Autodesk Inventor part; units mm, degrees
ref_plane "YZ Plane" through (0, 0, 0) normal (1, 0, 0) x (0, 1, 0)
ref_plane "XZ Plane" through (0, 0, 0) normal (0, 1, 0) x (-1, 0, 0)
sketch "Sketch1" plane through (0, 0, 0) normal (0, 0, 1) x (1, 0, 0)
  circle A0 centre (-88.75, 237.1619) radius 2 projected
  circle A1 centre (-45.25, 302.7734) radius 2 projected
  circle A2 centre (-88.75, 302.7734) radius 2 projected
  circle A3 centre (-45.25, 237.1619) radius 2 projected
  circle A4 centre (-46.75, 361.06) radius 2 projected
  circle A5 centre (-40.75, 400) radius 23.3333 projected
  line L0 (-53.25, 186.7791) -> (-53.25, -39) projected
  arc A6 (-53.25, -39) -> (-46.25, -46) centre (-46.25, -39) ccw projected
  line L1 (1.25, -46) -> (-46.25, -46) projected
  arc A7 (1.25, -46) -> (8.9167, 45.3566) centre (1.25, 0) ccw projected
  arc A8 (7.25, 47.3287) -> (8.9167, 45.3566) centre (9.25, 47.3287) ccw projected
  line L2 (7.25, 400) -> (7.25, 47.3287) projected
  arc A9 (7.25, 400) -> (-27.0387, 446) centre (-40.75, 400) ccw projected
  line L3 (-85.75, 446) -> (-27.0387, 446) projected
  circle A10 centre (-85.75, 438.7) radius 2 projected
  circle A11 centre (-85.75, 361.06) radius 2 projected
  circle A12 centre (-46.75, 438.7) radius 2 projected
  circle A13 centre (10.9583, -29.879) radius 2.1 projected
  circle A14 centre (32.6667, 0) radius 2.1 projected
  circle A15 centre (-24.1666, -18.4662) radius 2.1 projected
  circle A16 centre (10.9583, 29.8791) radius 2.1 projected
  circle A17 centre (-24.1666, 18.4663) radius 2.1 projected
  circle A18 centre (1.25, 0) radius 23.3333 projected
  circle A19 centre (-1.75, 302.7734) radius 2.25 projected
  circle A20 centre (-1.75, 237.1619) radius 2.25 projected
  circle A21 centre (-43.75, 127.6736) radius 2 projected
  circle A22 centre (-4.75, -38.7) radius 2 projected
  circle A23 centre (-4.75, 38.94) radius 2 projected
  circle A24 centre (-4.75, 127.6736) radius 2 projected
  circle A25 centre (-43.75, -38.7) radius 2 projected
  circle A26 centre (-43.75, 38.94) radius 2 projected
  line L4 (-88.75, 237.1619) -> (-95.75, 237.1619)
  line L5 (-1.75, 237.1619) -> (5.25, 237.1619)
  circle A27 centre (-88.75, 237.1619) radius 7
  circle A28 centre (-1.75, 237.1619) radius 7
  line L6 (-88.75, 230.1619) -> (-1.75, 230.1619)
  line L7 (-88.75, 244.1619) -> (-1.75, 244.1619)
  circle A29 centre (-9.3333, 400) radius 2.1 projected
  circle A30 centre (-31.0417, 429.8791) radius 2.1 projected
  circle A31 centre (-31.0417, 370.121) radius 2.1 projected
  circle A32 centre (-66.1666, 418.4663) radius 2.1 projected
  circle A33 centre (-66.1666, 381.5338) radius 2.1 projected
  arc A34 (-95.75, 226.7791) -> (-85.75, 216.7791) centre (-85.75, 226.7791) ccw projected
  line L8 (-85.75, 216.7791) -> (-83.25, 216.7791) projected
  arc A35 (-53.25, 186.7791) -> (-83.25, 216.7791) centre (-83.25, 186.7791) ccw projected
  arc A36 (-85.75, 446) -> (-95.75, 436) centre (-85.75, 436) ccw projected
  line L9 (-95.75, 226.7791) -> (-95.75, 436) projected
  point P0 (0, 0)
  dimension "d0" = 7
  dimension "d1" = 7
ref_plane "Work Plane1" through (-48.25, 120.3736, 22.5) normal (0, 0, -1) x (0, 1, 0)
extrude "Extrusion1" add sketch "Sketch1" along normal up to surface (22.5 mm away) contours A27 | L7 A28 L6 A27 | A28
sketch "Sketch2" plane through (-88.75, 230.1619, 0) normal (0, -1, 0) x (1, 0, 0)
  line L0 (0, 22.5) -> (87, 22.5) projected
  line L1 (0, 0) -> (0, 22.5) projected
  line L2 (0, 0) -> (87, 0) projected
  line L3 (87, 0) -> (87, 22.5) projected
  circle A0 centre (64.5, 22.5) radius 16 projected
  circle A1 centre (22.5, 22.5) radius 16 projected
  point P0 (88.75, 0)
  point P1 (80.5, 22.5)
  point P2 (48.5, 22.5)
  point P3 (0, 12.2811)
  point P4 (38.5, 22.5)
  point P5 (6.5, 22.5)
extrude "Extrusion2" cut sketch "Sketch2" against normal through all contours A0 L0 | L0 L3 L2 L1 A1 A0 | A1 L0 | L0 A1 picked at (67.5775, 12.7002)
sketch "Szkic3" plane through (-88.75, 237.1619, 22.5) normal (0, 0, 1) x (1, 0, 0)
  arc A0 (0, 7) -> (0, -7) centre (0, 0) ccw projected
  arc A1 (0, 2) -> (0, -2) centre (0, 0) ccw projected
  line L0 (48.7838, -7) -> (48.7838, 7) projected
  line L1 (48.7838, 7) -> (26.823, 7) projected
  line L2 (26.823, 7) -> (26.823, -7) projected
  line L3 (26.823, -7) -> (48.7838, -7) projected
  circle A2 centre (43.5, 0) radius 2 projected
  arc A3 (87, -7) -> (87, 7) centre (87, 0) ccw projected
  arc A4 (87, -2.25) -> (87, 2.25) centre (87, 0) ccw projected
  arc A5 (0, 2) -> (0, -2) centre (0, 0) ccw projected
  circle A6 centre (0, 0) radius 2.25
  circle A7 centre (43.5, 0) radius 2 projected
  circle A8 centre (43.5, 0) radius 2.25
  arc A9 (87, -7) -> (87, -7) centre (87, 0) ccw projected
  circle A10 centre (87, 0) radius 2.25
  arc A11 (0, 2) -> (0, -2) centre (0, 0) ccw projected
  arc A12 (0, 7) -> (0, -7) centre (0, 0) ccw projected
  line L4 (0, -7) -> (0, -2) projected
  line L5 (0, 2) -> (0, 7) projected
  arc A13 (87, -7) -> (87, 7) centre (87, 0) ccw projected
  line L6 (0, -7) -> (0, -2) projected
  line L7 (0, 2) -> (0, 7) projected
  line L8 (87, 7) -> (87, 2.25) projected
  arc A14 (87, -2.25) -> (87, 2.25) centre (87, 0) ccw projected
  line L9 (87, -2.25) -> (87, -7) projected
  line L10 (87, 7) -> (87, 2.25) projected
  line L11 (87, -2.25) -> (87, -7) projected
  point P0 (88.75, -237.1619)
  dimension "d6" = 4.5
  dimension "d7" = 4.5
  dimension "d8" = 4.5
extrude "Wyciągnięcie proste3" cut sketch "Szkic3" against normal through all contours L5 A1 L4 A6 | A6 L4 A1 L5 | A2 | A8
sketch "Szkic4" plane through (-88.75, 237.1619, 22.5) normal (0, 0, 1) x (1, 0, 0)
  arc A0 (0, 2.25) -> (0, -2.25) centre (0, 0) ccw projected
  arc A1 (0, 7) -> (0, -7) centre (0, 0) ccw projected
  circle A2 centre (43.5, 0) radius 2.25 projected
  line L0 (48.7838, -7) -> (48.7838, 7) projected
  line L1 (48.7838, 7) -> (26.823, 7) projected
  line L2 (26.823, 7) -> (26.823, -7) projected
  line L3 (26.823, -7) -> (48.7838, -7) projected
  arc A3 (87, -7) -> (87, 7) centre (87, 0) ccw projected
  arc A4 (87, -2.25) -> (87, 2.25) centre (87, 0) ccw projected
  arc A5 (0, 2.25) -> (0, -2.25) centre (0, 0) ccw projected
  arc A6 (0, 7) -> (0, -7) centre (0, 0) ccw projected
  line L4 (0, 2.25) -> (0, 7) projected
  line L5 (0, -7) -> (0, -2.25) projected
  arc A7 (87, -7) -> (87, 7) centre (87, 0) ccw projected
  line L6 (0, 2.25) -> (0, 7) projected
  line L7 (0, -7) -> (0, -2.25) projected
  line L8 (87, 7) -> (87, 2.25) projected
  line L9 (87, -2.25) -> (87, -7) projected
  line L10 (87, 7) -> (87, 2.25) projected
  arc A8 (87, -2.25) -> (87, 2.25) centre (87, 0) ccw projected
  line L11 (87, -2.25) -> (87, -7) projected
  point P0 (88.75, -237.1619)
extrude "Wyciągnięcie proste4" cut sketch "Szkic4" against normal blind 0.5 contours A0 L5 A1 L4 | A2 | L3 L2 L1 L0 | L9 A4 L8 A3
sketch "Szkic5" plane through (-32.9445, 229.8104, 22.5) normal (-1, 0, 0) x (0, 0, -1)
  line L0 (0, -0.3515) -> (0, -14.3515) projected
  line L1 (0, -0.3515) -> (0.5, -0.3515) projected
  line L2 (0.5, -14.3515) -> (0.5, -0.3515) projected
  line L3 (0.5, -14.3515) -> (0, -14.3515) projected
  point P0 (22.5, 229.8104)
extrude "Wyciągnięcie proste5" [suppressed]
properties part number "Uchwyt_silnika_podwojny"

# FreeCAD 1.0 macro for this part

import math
import FreeCAD as App
import Part
import Sketcher

V = App.Vector


def add_polygon(sketch, points):
    """Adds a closed chain of lines whose ends are joined by coincident constraints."""
    first, n = sketch.GeometryCount, len(points)
    for a, b in zip(points, points[1:] + points[:1]):
        sketch.addGeometry(Part.LineSegment(App.Vector(*a, 0), App.Vector(*b, 0)), False)
    for i in range(n):
        sketch.addConstraint(Sketcher.Constraint("Coincident", first + i, 2, first + (i + 1) % n, 1))

doc = App.newDocument("Part")
body = doc.addObject("PartDesign::Body", "Body")
body.AllowCompound = True

sketch1 = body.newObject("Sketcher::SketchObject", "Sketch")
sketch1.AttachmentSupport = (doc.getObject("XY_Plane"), [""])
sketch1.MapMode = "FlatFace"
sketch1.addGeometry(Part.ArcOfCircle(Part.Circle(V(-88.8, 237.2, 0), V(0, 0, 1), 7), math.radians(90), math.radians(180)), False)
sketch1.addGeometry(Part.ArcOfCircle(Part.Circle(V(-88.8, 237.2, 0), V(0, 0, 1), 7), math.radians(180), math.radians(270)), False)
sketch1.addGeometry(Part.LineSegment(V(-88.8, 230.2, 0), V(-1.8, 230.2, 0)), False)
sketch1.addGeometry(Part.ArcOfCircle(Part.Circle(V(-1.8, 237.2, 0), V(0, 0, 1), 7), math.radians(-90), math.radians(0)), False)
sketch1.addGeometry(Part.ArcOfCircle(Part.Circle(V(-1.8, 237.2, 0), V(0, 0, 1), 7), math.radians(0), math.radians(90)), False)
sketch1.addGeometry(Part.LineSegment(V(-1.8, 244.2, 0), V(-88.8, 244.2, 0)), False)
sketch1.addGeometry(Part.Circle(V(-88.8, 237.2, 0), V(0, 0, 1), 2), False)
sketch1.addGeometry(Part.Circle(V(-45.2, 237.2, 0), V(0, 0, 1), 2), False)
sketch1.addGeometry(Part.Circle(V(-1.8, 237.2, 0), V(0, 0, 1), 2.2), False)
sketch1.addConstraint(Sketcher.Constraint("Tangent", 0, 2, 1, 1))
sketch1.addConstraint(Sketcher.Constraint("Tangent", 1, 2, 2, 1))
sketch1.addConstraint(Sketcher.Constraint("Tangent", 2, 2, 3, 1))
sketch1.addConstraint(Sketcher.Constraint("Tangent", 3, 2, 4, 1))
sketch1.addConstraint(Sketcher.Constraint("Tangent", 4, 2, 5, 1))
sketch1.addConstraint(Sketcher.Constraint("Tangent", 5, 2, 0, 1))
sketch1.addConstraint(Sketcher.Constraint("Horizontal", 2))
sketch1.addConstraint(Sketcher.Constraint("Horizontal", 5))
sketch1.addConstraint(Sketcher.Constraint("Coincident", 6, 3, 0, 3))
sketch1.addConstraint(Sketcher.Constraint("Coincident", 8, 3, 3, 3))
sketch1.addConstraint(Sketcher.Constraint("Equal", 0, 1))
sketch1.addConstraint(Sketcher.Constraint("Equal", 1, 3))
sketch1.addConstraint(Sketcher.Constraint("Equal", 6, 7))
sketch1.addConstraint(Sketcher.Constraint("Horizontal", 6, 3, 7, 3))
sketch1.addConstraint(Sketcher.Constraint("Horizontal", 8, 3, 0, 2))
sketch1.addConstraint(Sketcher.Constraint("Horizontal", 0, 2, 3, 2))
sketch1.addConstraint(Sketcher.Constraint("Radius", 0, 7.0))
sketch1.addConstraint(Sketcher.Constraint("Diameter", 6, 4.0))
sketch1.addConstraint(Sketcher.Constraint("Diameter", 8, 4.5))
sketch1.addConstraint(Sketcher.Constraint("DistanceX", 2, 1, 2, 2, 87.0))
sketch1.addConstraint(Sketcher.Constraint("DistanceX", 0, 3, 7, 3, 43.5))
sketch1.addConstraint(Sketcher.Constraint("DistanceX", 0, 3, -1, 1, 88.75))
sketch1.addConstraint(Sketcher.Constraint("DistanceY", -1, 1, 0, 3, 237.162))
pad1 = body.newObject("PartDesign::Pad", "Pad")
pad1.Profile = sketch1
pad1.Length = 22.5

sketch2 = body.newObject("Sketcher::SketchObject", "Sketch001")
sketch2.AttachmentSupport = (doc.getObject("XZ_Plane"), [""])
sketch2.MapMode = "FlatFace"
sketch2.AttachmentOffset = App.Placement(V(0, 0, -230.1619), App.Rotation())
sketch2.addGeometry(Part.ArcOfCircle(Part.Circle(V(-66, 22, 0), V(0, 0, 1), 16), math.radians(0), math.radians(180)), False)
sketch2.addGeometry(Part.LineSegment(V(-82, 22, 0), V(-89, 22, 0)), False)
sketch2.addGeometry(Part.LineSegment(V(-89, 22, 0), V(-89, 0, 0)), False)
sketch2.addGeometry(Part.LineSegment(V(-89, 0, 0), V(-2, 0, 0)), False)
sketch2.addGeometry(Part.LineSegment(V(-2, 0, 0), V(-2, 22, 0)), False)
sketch2.addGeometry(Part.LineSegment(V(-2, 22, 0), V(-50, 22, 0)), False)
sketch2.addConstraint(Sketcher.Constraint("Coincident", 0, 2, 1, 1))
sketch2.addConstraint(Sketcher.Constraint("Coincident", 1, 2, 2, 1))
sketch2.addConstraint(Sketcher.Constraint("Coincident", 2, 2, 3, 1))
sketch2.addConstraint(Sketcher.Constraint("Coincident", 3, 2, 4, 1))
sketch2.addConstraint(Sketcher.Constraint("Coincident", 4, 2, 5, 1))
sketch2.addConstraint(Sketcher.Constraint("Coincident", 5, 2, 0, 1))
sketch2.addConstraint(Sketcher.Constraint("Horizontal", 1))
sketch2.addConstraint(Sketcher.Constraint("Vertical", 2))
sketch2.addConstraint(Sketcher.Constraint("Horizontal", 3))
sketch2.addConstraint(Sketcher.Constraint("Vertical", 4))
sketch2.addConstraint(Sketcher.Constraint("Horizontal", 5))
sketch2.addConstraint(Sketcher.Constraint("PointOnObject", 2, 2, -1))
sketch2.addConstraint(Sketcher.Constraint("Horizontal", 1, 2, 4, 2))
sketch2.addConstraint(Sketcher.Constraint("Radius", 0, 16.0))
sketch2.addConstraint(Sketcher.Constraint("DistanceX", 3, 1, 3, 2, 87.0))
sketch2.addConstraint(Sketcher.Constraint("DistanceX", 1, 2, 1, 1, 6.5))
sketch2.addConstraint(Sketcher.Constraint("DistanceY", 2, 2, 2, 1, 22.5))
sketch2.addConstraint(Sketcher.Constraint("DistanceY", -1, 1, 0, 3, 22.5))
sketch2.addConstraint(Sketcher.Constraint("DistanceX", 0, 3, -1, 1, 66.25))
pocket1 = body.newObject("PartDesign::Pocket", "Pocket")
pocket1.Profile = sketch2
pocket1.Type = "ThroughAll"

sketch3 = body.newObject("Sketcher::SketchObject", "Sketch002")
sketch3.AttachmentSupport = (doc.getObject("XY_Plane"), [""])
sketch3.MapMode = "FlatFace"
sketch3.AttachmentOffset = App.Placement(V(0, 0, 22.5), App.Rotation())
sketch3.addGeometry(Part.Circle(V(-88.8, 237.2, 0), V(0, 0, 1), 2.2), False)
sketch3.addGeometry(Part.Circle(V(-45.2, 237.2, 0), V(0, 0, 1), 2.2), False)
sketch3.addConstraint(Sketcher.Constraint("Equal", 0, 1))
sketch3.addConstraint(Sketcher.Constraint("Horizontal", 0, 3, 1, 3))
sketch3.addConstraint(Sketcher.Constraint("Diameter", 0, 4.5))
sketch3.addConstraint(Sketcher.Constraint("DistanceX", 0, 3, 1, 3, 43.5))
sketch3.addConstraint(Sketcher.Constraint("DistanceX", 0, 3, -1, 1, 88.75))
sketch3.addConstraint(Sketcher.Constraint("DistanceY", -1, 1, 0, 3, 237.162))
pocket2 = body.newObject("PartDesign::Pocket", "Pocket001")
pocket2.Profile = sketch3
pocket2.Type = "ThroughAll"

sketch4 = body.newObject("Sketcher::SketchObject", "Sketch003")
sketch4.AttachmentSupport = (doc.getObject("XY_Plane"), [""])
sketch4.MapMode = "FlatFace"
sketch4.AttachmentOffset = App.Placement(V(0, 0, 22.5), App.Rotation())
sketch4.addGeometry(Part.ArcOfCircle(Part.Circle(V(-88.8, 237.2, 0), V(0, 0, 1), 2.2), math.radians(90), math.radians(270)), False)
sketch4.addGeometry(Part.LineSegment(V(-88.8, 239.4, 0), V(-88.8, 244.2, 0)), False)
sketch4.addGeometry(Part.ArcOfCircle(Part.Circle(V(-88.8, 237.2, 0), V(0, 0, 1), 7), math.radians(90), math.radians(270)), False)
sketch4.addGeometry(Part.LineSegment(V(-88.8, 230.2, 0), V(-88.8, 234.9, 0)), False)
add_polygon(sketch4, [(-61.9, 230.2), (-40, 230.2), (-40, 244.2), (-61.9, 244.2)])
sketch4.addGeometry(Part.LineSegment(V(-1.8, 234.9, 0), V(-1.8, 230.2, 0)), False)
sketch4.addGeometry(Part.ArcOfCircle(Part.Circle(V(-1.8, 237.2, 0), V(0, 0, 1), 7), math.radians(-90), math.radians(90)), False)
sketch4.addGeometry(Part.LineSegment(V(-1.8, 244.2, 0), V(-1.8, 239.4, 0)), False)
sketch4.addGeometry(Part.ArcOfCircle(Part.Circle(V(-1.8, 237.2, 0), V(0, 0, 1), 2.2), math.radians(-90), math.radians(90)), False)
sketch4.addConstraint(Sketcher.Constraint("Coincident", 0, 1, 1, 1))
sketch4.addConstraint(Sketcher.Constraint("Coincident", 1, 2, 2, 1))
sketch4.addConstraint(Sketcher.Constraint("Coincident", 2, 2, 3, 1))
sketch4.addConstraint(Sketcher.Constraint("Coincident", 3, 2, 0, 2))
sketch4.addConstraint(Sketcher.Constraint("Coincident", 8, 2, 9, 1))
sketch4.addConstraint(Sketcher.Constraint("Coincident", 9, 2, 10, 1))
sketch4.addConstraint(Sketcher.Constraint("Coincident", 10, 2, 11, 2))
sketch4.addConstraint(Sketcher.Constraint("Coincident", 11, 1, 8, 1))
sketch4.addConstraint(Sketcher.Constraint("Vertical", 1))
sketch4.addConstraint(Sketcher.Constraint("Vertical", 3))
sketch4.addConstraint(Sketcher.Constraint("Horizontal", 4))
sketch4.addConstraint(Sketcher.Constraint("Vertical", 5))
sketch4.addConstraint(Sketcher.Constraint("Horizontal", 6))
sketch4.addConstraint(Sketcher.Constraint("Vertical", 7))
sketch4.addConstraint(Sketcher.Constraint("Vertical", 8))
sketch4.addConstraint(Sketcher.Constraint("Vertical", 10))
sketch4.addConstraint(Sketcher.Constraint("Coincident", 2, 3, 0, 3))
sketch4.addConstraint(Sketcher.Constraint("Coincident", 11, 3, 9, 3))
sketch4.addConstraint(Sketcher.Constraint("Equal", 2, 9))
sketch4.addConstraint(Sketcher.Constraint("Equal", 0, 11))
sketch4.addConstraint(Sketcher.Constraint("Horizontal", 2, 3, 9, 3))
sketch4.addConstraint(Sketcher.Constraint("Horizontal", 2, 2, 4, 2))
sketch4.addConstraint(Sketcher.Constraint("Horizontal", 1, 2, 5, 2))
sketch4.addConstraint(Sketcher.Constraint("Vertical", 2, 3, 0, 1))
sketch4.addConstraint(Sketcher.Constraint("Vertical", 1, 2, 2, 2))
sketch4.addConstraint(Sketcher.Constraint("Vertical", 11, 3, 8, 2))
sketch4.addConstraint(Sketcher.Constraint("Vertical", 8, 2, 9, 2))
sketch4.addConstraint(Sketcher.Constraint("Radius", 2, 7.0))
sketch4.addConstraint(Sketcher.Constraint("Radius", 0, 2.25))
sketch4.addConstraint(Sketcher.Constraint("DistanceX", 0, 3, 9, 3, 87.0))
sketch4.addConstraint(Sketcher.Constraint("DistanceX", 0, 3, -1, 1, 88.75))
sketch4.addConstraint(Sketcher.Constraint("DistanceX", 4, 1, 4, 2, 21.9608))
sketch4.addConstraint(Sketcher.Constraint("DistanceY", -1, 1, 0, 3, 237.162))
sketch4.addConstraint(Sketcher.Constraint("DistanceX", 6, 2, -1, 1, 61.927))
pocket3 = body.newObject("PartDesign::Pocket", "Pocket002")
pocket3.Profile = sketch4
pocket3.Length = 0.5

doc.recompute()
